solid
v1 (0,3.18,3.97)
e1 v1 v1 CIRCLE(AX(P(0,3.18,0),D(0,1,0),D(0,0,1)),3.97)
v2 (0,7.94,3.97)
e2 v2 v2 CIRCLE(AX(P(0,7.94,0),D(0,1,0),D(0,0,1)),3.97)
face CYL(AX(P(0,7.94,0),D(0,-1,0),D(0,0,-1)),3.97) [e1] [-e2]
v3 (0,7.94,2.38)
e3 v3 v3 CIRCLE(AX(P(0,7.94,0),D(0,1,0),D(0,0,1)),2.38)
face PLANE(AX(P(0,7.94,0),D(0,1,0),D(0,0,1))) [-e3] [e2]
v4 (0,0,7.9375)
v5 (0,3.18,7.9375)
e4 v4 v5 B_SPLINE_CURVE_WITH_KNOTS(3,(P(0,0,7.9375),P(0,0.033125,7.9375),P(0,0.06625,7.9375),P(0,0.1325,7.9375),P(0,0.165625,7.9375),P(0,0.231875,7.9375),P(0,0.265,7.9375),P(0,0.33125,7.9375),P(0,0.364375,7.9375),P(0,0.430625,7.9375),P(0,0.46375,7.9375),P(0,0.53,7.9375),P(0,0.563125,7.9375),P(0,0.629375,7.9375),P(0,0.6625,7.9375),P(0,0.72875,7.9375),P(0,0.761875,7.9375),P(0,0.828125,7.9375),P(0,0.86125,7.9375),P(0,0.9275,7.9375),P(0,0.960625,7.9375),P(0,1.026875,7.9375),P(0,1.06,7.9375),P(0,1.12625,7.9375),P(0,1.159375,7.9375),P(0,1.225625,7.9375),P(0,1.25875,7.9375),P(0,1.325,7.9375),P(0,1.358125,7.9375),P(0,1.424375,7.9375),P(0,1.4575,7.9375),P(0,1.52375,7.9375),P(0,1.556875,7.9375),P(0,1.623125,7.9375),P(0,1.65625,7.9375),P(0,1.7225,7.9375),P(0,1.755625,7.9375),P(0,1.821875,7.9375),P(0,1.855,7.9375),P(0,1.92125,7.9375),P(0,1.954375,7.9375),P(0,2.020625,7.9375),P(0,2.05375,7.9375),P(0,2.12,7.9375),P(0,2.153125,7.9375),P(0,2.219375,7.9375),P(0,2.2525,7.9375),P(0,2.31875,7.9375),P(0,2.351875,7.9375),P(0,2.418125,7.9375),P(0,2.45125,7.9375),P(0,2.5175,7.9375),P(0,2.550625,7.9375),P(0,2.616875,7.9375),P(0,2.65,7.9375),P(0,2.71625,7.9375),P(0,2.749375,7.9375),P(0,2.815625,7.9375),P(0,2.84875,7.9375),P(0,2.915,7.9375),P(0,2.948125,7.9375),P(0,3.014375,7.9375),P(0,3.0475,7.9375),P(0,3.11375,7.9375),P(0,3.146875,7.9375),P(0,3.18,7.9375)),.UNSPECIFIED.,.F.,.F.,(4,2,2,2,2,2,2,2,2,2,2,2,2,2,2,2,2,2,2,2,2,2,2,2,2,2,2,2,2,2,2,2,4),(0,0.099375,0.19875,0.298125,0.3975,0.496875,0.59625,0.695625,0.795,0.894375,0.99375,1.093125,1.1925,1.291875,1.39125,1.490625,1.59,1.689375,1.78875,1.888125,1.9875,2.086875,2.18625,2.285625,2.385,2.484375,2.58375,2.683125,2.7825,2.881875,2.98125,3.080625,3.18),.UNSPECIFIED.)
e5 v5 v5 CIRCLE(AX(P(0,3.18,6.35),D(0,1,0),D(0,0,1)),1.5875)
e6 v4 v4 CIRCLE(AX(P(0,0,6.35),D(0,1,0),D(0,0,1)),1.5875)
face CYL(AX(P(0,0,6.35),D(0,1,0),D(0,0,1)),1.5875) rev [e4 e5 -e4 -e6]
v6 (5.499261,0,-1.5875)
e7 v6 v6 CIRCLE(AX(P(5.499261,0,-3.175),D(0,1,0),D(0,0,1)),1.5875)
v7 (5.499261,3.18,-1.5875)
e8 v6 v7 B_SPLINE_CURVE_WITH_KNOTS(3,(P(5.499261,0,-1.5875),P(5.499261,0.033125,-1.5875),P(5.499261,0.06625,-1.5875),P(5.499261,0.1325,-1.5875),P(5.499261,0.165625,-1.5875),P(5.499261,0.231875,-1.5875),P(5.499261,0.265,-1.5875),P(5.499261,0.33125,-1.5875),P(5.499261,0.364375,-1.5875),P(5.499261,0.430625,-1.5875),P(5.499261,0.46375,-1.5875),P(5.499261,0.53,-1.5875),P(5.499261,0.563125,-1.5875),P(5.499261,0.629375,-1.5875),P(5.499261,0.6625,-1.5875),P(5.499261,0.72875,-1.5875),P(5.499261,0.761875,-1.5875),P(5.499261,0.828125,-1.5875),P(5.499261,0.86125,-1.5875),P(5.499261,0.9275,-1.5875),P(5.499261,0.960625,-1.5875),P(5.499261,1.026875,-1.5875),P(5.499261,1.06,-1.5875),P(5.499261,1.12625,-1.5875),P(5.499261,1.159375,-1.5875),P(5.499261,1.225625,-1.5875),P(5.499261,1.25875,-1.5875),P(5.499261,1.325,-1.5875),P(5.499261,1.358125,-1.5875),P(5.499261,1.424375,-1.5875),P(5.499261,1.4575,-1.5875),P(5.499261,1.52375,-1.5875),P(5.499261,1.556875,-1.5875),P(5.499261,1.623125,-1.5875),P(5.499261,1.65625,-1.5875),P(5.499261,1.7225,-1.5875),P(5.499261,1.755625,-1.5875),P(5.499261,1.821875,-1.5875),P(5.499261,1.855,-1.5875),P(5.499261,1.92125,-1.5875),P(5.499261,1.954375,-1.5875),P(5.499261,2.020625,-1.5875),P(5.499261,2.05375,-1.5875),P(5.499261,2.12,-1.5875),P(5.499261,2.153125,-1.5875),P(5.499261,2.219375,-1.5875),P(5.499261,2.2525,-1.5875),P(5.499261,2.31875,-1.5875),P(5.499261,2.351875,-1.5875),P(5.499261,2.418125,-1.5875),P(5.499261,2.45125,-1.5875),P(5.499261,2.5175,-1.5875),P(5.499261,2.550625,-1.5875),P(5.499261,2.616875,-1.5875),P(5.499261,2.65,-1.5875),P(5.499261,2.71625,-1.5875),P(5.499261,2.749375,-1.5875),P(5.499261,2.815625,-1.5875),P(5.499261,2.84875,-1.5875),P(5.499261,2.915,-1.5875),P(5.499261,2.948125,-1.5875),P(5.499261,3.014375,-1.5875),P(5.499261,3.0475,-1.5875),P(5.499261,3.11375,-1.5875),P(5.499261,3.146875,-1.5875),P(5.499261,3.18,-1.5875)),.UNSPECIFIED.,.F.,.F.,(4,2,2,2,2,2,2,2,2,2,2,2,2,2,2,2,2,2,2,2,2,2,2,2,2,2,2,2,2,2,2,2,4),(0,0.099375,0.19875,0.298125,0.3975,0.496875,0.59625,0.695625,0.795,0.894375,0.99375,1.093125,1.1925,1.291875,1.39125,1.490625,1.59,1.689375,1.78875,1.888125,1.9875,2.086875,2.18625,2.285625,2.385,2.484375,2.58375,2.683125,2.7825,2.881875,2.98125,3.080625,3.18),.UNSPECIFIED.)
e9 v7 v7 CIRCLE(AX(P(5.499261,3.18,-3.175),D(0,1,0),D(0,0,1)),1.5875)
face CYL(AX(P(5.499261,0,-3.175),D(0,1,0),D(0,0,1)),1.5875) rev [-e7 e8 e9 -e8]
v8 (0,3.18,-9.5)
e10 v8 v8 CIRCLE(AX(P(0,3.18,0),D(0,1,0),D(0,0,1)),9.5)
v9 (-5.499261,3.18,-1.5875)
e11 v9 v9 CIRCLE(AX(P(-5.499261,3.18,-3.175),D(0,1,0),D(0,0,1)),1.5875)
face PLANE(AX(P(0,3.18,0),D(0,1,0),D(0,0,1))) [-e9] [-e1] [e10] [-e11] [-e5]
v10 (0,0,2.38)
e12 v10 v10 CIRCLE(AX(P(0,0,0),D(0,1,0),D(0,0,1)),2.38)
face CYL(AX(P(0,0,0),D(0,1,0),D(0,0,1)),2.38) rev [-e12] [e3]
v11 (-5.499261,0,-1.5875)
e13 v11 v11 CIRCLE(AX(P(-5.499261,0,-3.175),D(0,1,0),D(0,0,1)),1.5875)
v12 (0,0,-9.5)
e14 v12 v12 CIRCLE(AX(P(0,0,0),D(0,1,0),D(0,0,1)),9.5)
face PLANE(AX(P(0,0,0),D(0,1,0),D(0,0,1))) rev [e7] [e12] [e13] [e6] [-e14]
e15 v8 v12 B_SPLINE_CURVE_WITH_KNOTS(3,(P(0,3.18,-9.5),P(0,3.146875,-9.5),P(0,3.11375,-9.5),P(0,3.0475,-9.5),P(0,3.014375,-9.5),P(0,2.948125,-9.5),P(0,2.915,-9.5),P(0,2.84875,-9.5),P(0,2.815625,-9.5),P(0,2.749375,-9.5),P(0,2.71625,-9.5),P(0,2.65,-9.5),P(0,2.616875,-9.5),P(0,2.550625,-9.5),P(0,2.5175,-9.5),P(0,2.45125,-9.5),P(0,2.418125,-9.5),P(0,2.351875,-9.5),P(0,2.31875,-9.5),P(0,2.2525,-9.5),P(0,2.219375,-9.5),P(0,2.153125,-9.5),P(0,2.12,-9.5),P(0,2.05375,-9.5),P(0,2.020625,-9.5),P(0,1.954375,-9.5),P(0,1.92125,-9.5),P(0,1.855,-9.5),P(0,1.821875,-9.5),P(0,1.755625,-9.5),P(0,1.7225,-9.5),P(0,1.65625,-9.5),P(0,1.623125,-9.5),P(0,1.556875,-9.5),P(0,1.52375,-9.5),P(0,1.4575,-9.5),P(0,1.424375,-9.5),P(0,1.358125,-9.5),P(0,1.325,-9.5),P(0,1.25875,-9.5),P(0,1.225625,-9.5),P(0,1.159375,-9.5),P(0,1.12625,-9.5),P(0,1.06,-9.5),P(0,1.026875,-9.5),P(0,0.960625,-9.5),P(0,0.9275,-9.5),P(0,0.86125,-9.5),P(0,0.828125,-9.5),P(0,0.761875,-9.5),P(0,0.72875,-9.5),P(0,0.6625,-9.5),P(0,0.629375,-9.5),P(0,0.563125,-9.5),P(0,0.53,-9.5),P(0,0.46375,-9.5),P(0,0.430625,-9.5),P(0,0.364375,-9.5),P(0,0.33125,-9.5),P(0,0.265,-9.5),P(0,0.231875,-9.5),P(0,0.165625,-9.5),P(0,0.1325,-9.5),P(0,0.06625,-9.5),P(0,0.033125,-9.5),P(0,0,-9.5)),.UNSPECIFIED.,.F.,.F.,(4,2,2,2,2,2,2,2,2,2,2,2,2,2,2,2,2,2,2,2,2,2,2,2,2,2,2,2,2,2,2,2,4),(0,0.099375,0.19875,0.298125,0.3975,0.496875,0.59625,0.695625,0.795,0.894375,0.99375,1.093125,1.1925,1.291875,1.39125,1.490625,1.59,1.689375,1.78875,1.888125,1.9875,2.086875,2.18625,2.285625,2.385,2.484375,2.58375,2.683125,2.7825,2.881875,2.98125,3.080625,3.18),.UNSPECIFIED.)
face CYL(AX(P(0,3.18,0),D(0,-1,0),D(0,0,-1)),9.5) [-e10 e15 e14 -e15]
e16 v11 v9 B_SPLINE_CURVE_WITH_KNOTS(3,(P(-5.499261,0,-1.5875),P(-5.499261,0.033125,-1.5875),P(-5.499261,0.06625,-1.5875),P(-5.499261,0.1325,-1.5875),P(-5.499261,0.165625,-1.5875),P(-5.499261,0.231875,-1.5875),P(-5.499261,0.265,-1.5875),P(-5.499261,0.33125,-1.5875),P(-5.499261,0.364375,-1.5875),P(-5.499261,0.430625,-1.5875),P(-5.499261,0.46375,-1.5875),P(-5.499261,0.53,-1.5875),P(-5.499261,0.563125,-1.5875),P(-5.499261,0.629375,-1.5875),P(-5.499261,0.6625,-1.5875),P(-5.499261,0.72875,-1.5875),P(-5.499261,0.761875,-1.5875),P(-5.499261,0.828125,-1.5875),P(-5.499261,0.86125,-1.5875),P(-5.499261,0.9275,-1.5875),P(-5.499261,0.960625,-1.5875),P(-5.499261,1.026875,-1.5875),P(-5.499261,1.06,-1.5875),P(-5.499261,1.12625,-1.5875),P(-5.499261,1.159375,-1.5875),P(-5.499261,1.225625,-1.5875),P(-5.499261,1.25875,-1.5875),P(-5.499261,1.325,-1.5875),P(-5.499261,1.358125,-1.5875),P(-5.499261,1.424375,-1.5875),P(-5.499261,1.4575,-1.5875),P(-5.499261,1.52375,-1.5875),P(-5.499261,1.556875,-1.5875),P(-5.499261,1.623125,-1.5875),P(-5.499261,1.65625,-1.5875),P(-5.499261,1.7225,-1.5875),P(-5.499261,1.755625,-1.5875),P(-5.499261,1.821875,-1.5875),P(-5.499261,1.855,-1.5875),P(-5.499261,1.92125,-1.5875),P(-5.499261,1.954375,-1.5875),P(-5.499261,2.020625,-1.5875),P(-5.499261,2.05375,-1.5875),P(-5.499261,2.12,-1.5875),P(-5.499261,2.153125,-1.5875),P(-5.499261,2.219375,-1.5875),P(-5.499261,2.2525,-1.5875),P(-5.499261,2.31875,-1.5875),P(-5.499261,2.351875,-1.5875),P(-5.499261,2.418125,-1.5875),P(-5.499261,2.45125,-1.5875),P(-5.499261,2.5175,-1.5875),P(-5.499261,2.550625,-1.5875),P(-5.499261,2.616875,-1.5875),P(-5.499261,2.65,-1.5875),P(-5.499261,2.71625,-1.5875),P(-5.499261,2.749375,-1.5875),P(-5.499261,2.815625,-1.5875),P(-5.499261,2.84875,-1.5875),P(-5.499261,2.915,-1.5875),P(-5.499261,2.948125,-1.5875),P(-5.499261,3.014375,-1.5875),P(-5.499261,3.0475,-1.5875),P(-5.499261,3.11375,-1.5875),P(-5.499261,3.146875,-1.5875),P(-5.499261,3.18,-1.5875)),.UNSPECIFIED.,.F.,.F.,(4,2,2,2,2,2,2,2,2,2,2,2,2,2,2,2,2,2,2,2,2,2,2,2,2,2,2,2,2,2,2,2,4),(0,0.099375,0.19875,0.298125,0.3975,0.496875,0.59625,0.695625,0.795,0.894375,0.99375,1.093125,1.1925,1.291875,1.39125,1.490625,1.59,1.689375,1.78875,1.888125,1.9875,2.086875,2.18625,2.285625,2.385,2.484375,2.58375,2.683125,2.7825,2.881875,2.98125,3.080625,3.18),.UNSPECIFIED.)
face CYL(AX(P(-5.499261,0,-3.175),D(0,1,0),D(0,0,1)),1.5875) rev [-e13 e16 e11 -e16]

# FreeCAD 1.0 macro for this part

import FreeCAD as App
import Part
import Sketcher
from FreeCAD import Vector

doc = App.newDocument("Part")
body = doc.addObject("PartDesign::Body", "Body")

sketch1 = body.newObject("Sketcher::SketchObject", "Sketch")
sketch1.AttachmentSupport = (doc.getObject("XZ_Plane"), [""])
sketch1.MapMode = "FlatFace"
sketch1.addGeometry(Part.Circle(Vector(0, 0, 0), Vector(0, 0, 1), 9.5), False)
sketch1.addConstraint(Sketcher.Constraint("Coincident", 0, 3, -1, 1))
sketch1.addConstraint(Sketcher.Constraint("Diameter", 0, 19.0))
pad1 = body.newObject("PartDesign::Pad", "Pad")
pad1.Profile = sketch1
pad1.Length = 3.18
pad1.Reversed = True

sketch2 = body.newObject("Sketcher::SketchObject", "Sketch001")
sketch2.AttachmentSupport = (doc.getObject("XZ_Plane"), [""])
sketch2.MapMode = "FlatFace"
sketch2.AttachmentOffset = App.Placement(Vector(0, 0, -3.18), App.Rotation())
sketch2.addGeometry(Part.Circle(Vector(0, 0, 0), Vector(0, 0, 1), 3.97), False)
sketch2.addConstraint(Sketcher.Constraint("Coincident", 0, 3, -1, 1))
sketch2.addConstraint(Sketcher.Constraint("Diameter", 0, 7.94))
pad2 = body.newObject("PartDesign::Pad", "Pad001")
pad2.Profile = sketch2
pad2.Length = 4.76
pad2.Reversed = True

sketch3 = body.newObject("Sketcher::SketchObject", "Sketch002")
sketch3.AttachmentSupport = (doc.getObject("XZ_Plane"), [""])
sketch3.MapMode = "FlatFace"
sketch3.AttachmentOffset = App.Placement(Vector(0, 0, -7.94), App.Rotation())
sketch3.addGeometry(Part.Circle(Vector(0, 0, 0), Vector(0, 0, 1), 2.38), False)
sketch3.addConstraint(Sketcher.Constraint("Coincident", 0, 3, -1, 1))
sketch3.addConstraint(Sketcher.Constraint("Diameter", 0, 4.76))
pocket1 = body.newObject("PartDesign::Pocket", "Pocket")
pocket1.Profile = sketch3
pocket1.Type = "ThroughAll"
pocket1.Reversed = True

sketch4 = body.newObject("Sketcher::SketchObject", "Sketch003")
sketch4.AttachmentSupport = (doc.getObject("XZ_Plane"), [""])
sketch4.MapMode = "FlatFace"
sketch4.AttachmentOffset = App.Placement(Vector(0, 0, -3.18), App.Rotation())
sketch4.addGeometry(Part.Circle(Vector(0, 6.35, 0), Vector(0, 0, 1), 1.5875), False)
sketch4.addGeometry(Part.Circle(Vector(-5.499261, -3.175, 0), Vector(0, 0, 1), 1.5875), False)
sketch4.addGeometry(Part.Circle(Vector(5.499261, -3.175, 0), Vector(0, 0, 1), 1.5875), False)
sketch4.addConstraint(Sketcher.Constraint("Equal", 0, 1))
sketch4.addConstraint(Sketcher.Constraint("Equal", 1, 2))
sketch4.addConstraint(Sketcher.Constraint("Symmetric", 1, 3, 2, 3, -2))
sketch4.addConstraint(Sketcher.Constraint("PointOnObject", 0, 3, -2))
sketch4.addConstraint(Sketcher.Constraint("Diameter", 0, 3.175))
sketch4.addConstraint(Sketcher.Constraint("DistanceY", -1, 1, 0, 3, 6.35))
sketch4.addConstraint(Sketcher.Constraint("DistanceY", 1, 3, -1, 1, 3.175))
sketch4.addConstraint(Sketcher.Constraint("DistanceX", 1, 3, -1, 1, 5.499261))
pocket2 = body.newObject("PartDesign::Pocket", "Pocket001")
pocket2.Profile = sketch4
pocket2.Type = "ThroughAll"
pocket2.Reversed = True

doc.recompute()
